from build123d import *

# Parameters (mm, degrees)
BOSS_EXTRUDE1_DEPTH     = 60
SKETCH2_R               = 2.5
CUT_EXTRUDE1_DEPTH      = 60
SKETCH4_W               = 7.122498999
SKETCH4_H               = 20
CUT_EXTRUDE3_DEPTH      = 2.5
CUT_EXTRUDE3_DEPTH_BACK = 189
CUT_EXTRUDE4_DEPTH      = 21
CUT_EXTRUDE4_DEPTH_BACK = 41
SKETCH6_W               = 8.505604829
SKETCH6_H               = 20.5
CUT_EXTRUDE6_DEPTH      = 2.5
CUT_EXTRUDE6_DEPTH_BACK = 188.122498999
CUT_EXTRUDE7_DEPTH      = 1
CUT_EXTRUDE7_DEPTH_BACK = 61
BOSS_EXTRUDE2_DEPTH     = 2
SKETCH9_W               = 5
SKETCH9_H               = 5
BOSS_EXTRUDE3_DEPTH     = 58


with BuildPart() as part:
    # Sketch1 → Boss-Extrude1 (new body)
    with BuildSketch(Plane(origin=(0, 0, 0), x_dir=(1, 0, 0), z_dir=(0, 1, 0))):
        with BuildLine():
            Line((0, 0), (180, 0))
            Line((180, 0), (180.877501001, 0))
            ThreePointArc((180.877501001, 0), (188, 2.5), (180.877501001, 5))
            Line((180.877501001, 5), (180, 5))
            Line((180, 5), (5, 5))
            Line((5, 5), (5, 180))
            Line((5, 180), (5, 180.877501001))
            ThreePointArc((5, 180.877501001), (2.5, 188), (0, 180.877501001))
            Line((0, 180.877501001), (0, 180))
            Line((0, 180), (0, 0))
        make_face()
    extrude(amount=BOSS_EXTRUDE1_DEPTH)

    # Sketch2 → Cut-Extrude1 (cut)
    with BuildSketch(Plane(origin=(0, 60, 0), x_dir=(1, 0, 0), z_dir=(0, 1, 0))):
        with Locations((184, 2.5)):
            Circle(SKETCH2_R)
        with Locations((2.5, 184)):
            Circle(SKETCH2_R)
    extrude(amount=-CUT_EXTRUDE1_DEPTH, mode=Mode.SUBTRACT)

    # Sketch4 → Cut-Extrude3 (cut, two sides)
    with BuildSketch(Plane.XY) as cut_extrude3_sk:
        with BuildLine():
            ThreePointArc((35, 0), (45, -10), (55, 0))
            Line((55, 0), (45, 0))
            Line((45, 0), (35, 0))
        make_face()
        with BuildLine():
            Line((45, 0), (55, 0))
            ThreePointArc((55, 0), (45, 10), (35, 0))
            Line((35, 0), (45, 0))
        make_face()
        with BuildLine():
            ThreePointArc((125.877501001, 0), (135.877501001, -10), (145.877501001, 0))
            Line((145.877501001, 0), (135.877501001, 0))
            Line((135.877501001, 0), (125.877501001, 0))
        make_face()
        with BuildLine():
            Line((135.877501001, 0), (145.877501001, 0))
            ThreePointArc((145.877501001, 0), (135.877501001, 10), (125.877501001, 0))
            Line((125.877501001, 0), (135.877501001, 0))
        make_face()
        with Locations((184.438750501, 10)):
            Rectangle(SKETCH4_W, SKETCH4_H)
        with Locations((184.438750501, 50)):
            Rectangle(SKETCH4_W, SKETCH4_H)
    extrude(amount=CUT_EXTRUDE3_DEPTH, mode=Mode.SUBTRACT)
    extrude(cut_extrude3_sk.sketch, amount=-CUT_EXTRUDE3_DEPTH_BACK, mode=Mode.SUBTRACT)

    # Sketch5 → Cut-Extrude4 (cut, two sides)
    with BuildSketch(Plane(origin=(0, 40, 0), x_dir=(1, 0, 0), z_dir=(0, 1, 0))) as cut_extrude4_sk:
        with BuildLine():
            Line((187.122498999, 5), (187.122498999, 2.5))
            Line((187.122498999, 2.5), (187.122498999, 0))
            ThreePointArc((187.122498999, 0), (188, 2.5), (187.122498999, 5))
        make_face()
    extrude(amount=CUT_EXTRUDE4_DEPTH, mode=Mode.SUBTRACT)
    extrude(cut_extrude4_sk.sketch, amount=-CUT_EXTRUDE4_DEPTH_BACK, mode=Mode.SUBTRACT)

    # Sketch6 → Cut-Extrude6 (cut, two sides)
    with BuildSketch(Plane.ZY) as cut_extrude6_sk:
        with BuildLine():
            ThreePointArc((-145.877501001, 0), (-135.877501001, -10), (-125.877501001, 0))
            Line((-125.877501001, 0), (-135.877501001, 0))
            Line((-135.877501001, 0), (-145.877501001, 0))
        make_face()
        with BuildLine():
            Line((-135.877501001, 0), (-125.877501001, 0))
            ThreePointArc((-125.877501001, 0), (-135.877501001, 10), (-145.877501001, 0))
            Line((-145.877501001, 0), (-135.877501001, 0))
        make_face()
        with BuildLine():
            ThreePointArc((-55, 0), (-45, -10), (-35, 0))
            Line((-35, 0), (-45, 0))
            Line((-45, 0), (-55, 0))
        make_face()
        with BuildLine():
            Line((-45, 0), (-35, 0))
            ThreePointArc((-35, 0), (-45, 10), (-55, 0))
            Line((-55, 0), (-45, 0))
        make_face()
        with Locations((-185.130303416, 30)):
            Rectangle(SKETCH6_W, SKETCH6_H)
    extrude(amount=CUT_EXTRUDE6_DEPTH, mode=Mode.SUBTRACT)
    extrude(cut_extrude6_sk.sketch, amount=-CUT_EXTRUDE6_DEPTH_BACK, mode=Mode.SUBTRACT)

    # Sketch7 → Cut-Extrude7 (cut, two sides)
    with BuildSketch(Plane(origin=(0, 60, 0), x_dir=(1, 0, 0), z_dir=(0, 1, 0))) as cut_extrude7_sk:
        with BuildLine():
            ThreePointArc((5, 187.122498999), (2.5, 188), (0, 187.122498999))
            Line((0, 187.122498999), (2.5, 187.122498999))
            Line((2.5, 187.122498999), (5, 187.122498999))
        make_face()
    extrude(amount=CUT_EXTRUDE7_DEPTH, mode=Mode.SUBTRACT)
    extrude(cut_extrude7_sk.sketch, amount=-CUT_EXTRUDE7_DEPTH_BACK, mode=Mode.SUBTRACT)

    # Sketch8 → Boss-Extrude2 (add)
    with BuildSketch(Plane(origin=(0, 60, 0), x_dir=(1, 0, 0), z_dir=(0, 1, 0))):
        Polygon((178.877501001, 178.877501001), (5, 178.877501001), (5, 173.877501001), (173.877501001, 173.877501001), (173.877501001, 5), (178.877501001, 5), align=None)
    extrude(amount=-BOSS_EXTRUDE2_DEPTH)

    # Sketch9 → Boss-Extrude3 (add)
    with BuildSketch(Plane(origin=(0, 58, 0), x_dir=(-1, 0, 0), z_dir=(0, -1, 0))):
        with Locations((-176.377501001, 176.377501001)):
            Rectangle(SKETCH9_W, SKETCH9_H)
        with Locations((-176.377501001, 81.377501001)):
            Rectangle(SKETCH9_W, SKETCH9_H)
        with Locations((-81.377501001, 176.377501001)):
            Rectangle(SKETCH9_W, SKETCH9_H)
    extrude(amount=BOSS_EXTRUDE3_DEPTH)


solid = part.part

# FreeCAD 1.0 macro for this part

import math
import FreeCAD as App
import Part
import Sketcher

V = App.Vector


def add_polygon(sketch, points):
    """Adds a closed chain of lines whose ends are joined by coincident constraints."""
    first, n = sketch.GeometryCount, len(points)
    for a, b in zip(points, points[1:] + points[:1]):
        sketch.addGeometry(Part.LineSegment(App.Vector(*a, 0), App.Vector(*b, 0)), False)
    for i in range(n):
        sketch.addConstraint(Sketcher.Constraint("Coincident", first + i, 2, first + (i + 1) % n, 1))

doc = App.newDocument("Part")
body = doc.addObject("PartDesign::Body", "Body")

# Sketch on XZ plane
sketch1 = doc.addObject("Sketcher::SketchObject", "Sketch")
body.addObject(sketch1)
sketch1.AttachmentSupport = (doc.XZ_Plane, [""])
sketch1.MapMode = "FlatFace"
sketch1.addGeometry([
    Part.LineSegment(V(0, 0, 0), V(180.9, 0, 0)),  # 0
    Part.ArcOfCircle(Part.Circle(V(184, -2.5, 0), V(0, 0, 1), 4), math.radians(-141), math.radians(141)),  # 1
    Part.LineSegment(V(180.9, -5, 0), V(5, -5, 0)),  # 2
    Part.LineSegment(V(5, -5, 0), V(5, -180.9, 0)),  # 3
    Part.ArcOfCircle(Part.Circle(V(2.5, -184, 0), V(0, 0, 1), 4), math.radians(129), math.radians(411)),  # 4
    Part.LineSegment(V(0, -180.9, 0), V(0, 0, 0)),  # 5
], False)
sketch1.addConstraint([
    Sketcher.Constraint("Coincident", 0, 2, 1, 2),
    Sketcher.Constraint("Coincident", 1, 1, 2, 1),
    Sketcher.Constraint("Coincident", 2, 2, 3, 1),
    Sketcher.Constraint("Coincident", 3, 2, 4, 2),
    Sketcher.Constraint("Coincident", 4, 1, 5, 1),
    Sketcher.Constraint("Coincident", 5, 2, 0, 1),
    Sketcher.Constraint("Horizontal", 0),
    Sketcher.Constraint("Horizontal", 2),
    Sketcher.Constraint("Vertical", 3),
    Sketcher.Constraint("Vertical", 5),
    Sketcher.Constraint("Coincident", 5, 2, -1, 1),
    Sketcher.Constraint("Equal", 1, 4),
    Sketcher.Constraint("Horizontal", 3, 2, 4, 1),
    Sketcher.Constraint("Vertical", 0, 2, 1, 1),
    Sketcher.Constraint("Equal", 2, 3),
    Sketcher.Constraint("Equal", 0, 5),
    Sketcher.Constraint("Radius", 1, 4.0),
    Sketcher.Constraint("DistanceX", -1, 1, 1, 3, 184.0),
    Sketcher.Constraint("DistanceY", 1, 1, -1, 1, 5.0),
])
pad1 = doc.addObject("PartDesign::Pad", "Pad")
body.addObject(pad1)
pad1.Profile = sketch1
pad1.Length = 60
pad1.Reversed = True

# Sketch on XZ plane
sketch2 = doc.addObject("Sketcher::SketchObject", "Sketch001")
body.addObject(sketch2)
sketch2.AttachmentSupport = (doc.XZ_Plane, [""])
sketch2.MapMode = "FlatFace"
sketch2.AttachmentOffset = App.Placement(V(0, 0, -60), App.Rotation())
sketch2.addGeometry([
    Part.Circle(V(184, -2.5, 0), V(0, 0, 1), 2.5),
    Part.Circle(V(2.5, -184, 0), V(0, 0, 1), 2.5),
], False)
sketch2.addConstraint([
    Sketcher.Constraint("Equal", 0, 1),
    Sketcher.Constraint("Diameter", 0, 5.0),
    Sketcher.Constraint("DistanceX", -1, 1, 0, 3, 184.0),
    Sketcher.Constraint("DistanceY", 1, 3, -1, 1, 184.0),
    Sketcher.Constraint("DistanceY", 0, 3, -1, 1, 2.5),
    Sketcher.Constraint("DistanceX", -1, 1, 1, 3, 2.5),
])
pocket1 = doc.addObject("PartDesign::Pocket", "Pocket")
body.addObject(pocket1)
pocket1.Profile = sketch2
pocket1.Length = 60
pocket1.Reversed = True

# Sketch on XY plane
sketch3 = doc.addObject("Sketcher::SketchObject", "Sketch002")
body.addObject(sketch3)
sketch3.AttachmentSupport = (doc.XY_Plane, [""])
sketch3.MapMode = "FlatFace"
sketch3.addGeometry(Part.Circle(V(45, 0, 0), V(0, 0, 1), 10), False)  # 0
sketch3.addGeometry(Part.Circle(V(136, 0, 0), V(0, 0, 1), 10), False)  # 1
add_polygon(sketch3, [(181, 20), (181, 0), (188, 0), (188, 20)])  # lines 2-5
add_polygon(sketch3, [(181, 60), (181, 40), (188, 40), (188, 60)])  # lines 6-9
sketch3.addConstraint([
    Sketcher.Constraint("Vertical", 2),
    Sketcher.Constraint("Horizontal", 3),
    Sketcher.Constraint("Vertical", 4),
    Sketcher.Constraint("Horizontal", 5),
    Sketcher.Constraint("Vertical", 6),
    Sketcher.Constraint("Horizontal", 7),
    Sketcher.Constraint("Vertical", 8),
    Sketcher.Constraint("Horizontal", 9),
    Sketcher.Constraint("Equal", 0, 1),
    Sketcher.Constraint("PointOnObject", 0, 3, -1),
    Sketcher.Constraint("PointOnObject", 1, 3, -1),
    Sketcher.Constraint("PointOnObject", 2, 2, -1),
    Sketcher.Constraint("Vertical", 5, 2, 6, 2),
    Sketcher.Constraint("Vertical", 4, 2, 7, 2),
    Sketcher.Constraint("Equal", 4, 6),
    Sketcher.Constraint("Diameter", 0, 20.0),
    Sketcher.Constraint("DistanceY", 2, 2, 2, 1, 20.0),
    Sketcher.Constraint("DistanceX", -1, 1, 0, 3, 45.0),
    Sketcher.Constraint("DistanceX", -1, 1, 3, 2, 188.0),
    Sketcher.Constraint("DistanceY", -1, 1, 6, 2, 40.0),
    Sketcher.Constraint("DistanceX", 1, 3, 2, 2, 45.0),
    Sketcher.Constraint("DistanceX", 3, 1, 3, 2, 7.122499),
])
pocket2 = doc.addObject("PartDesign::Pocket", "Pocket001")
body.addObject(pocket2)
pocket2.Profile = sketch3
pocket2.Type = "ThroughAll"
pocket2.Midplane = True

# Sketch on XZ plane
sketch4 = doc.addObject("Sketcher::SketchObject", "Sketch003")
body.addObject(sketch4)
sketch4.AttachmentSupport = (doc.XZ_Plane, [""])
sketch4.MapMode = "FlatFace"
sketch4.AttachmentOffset = App.Placement(V(0, 0, -40), App.Rotation())
sketch4.addGeometry([
    Part.LineSegment(V(187.1, -5, 0), V(187.1, 0, 0)),
    Part.ArcOfCircle(Part.Circle(V(184, -2.5, 0), V(0, 0, 1), 4), math.radians(-39), math.radians(39)),
], False)
sketch4.addConstraint([
    Sketcher.Constraint("Coincident", 0, 1, 1, 1),
    Sketcher.Constraint("Coincident", 1, 2, 0, 2),
    Sketcher.Constraint("Vertical", 0),
    Sketcher.Constraint("PointOnObject", 1, 2, -1),
    Sketcher.Constraint("Radius", 1, 4.0),
    Sketcher.Constraint("DistanceY", 0, 1, 0, 2, 5.0),
    Sketcher.Constraint("DistanceX", -1, 1, 1, 3, 184.0),
])
pocket3 = doc.addObject("PartDesign::Pocket", "Pocket002")
body.addObject(pocket3)
pocket3.Profile = sketch4
pocket3.Type = "ThroughAll"
pocket3.Midplane = True

# Sketch on YZ plane
sketch5 = doc.addObject("Sketcher::SketchObject", "Sketch004")
body.addObject(sketch5)
sketch5.AttachmentSupport = (doc.YZ_Plane, [""])
sketch5.MapMode = "FlatFace"
sketch5.addGeometry(Part.Circle(V(0, -136, 0), V(0, 0, 1), 10), False)  # 0
sketch5.addGeometry(Part.Circle(V(0, -45, 0), V(0, 0, 1), 10), False)  # 1
add_polygon(sketch5, [(40, -189), (20, -189), (20, -181), (40, -181)])  # lines 2-5
sketch5.addConstraint([
    Sketcher.Constraint("Horizontal", 2),
    Sketcher.Constraint("Vertical", 3),
    Sketcher.Constraint("Horizontal", 4),
    Sketcher.Constraint("Vertical", 5),
    Sketcher.Constraint("Equal", 0, 1),
    Sketcher.Constraint("PointOnObject", 0, 3, -2),
    Sketcher.Constraint("PointOnObject", 1, 3, -2),
    Sketcher.Constraint("Diameter", 0, 20.0),
    Sketcher.Constraint("DistanceX", 2, 2, 2, 1, 20.5),
    Sketcher.Constraint("DistanceY", 1, 3, -1, 1, 45.0),
    Sketcher.Constraint("DistanceY", 3, 2, 0, 3, 45.0),
    Sketcher.Constraint("DistanceX", -1, 1, 2, 2, 19.75),
    Sketcher.Constraint("DistanceY", 0, 3, -1, 1, 135.877501),
    Sketcher.Constraint("DistanceY", 3, 1, 3, 2, 8.505605),
])
pocket4 = doc.addObject("PartDesign::Pocket", "Pocket003")
body.addObject(pocket4)
pocket4.Profile = sketch5
pocket4.Type = "ThroughAll"
pocket4.Midplane = True

# Sketch on XZ plane
sketch6 = doc.addObject("Sketcher::SketchObject", "Sketch005")
body.addObject(sketch6)
sketch6.AttachmentSupport = (doc.XZ_Plane, [""])
sketch6.MapMode = "FlatFace"
sketch6.AttachmentOffset = App.Placement(V(0, 0, -60), App.Rotation())
sketch6.addGeometry([
    Part.ArcOfCircle(Part.Circle(V(2.5, -184, 0), V(0, 0, 1), 4), math.radians(-129), math.radians(-51)),
    Part.LineSegment(V(0, -187.1, 0), V(5, -187.1, 0)),
], False)
sketch6.addConstraint([
    Sketcher.Constraint("Coincident", 0, 1, 1, 1),
    Sketcher.Constraint("Coincident", 1, 2, 0, 2),
    Sketcher.Constraint("Horizontal", 1),
    Sketcher.Constraint("PointOnObject", 0, 1, -2),
    Sketcher.Constraint("Radius", 0, 4.0),
    Sketcher.Constraint("DistanceX", 1, 1, 1, 2, 5.0),
    Sketcher.Constraint("DistanceY", 0, 3, -1, 1, 184.0),
])
pocket5 = doc.addObject("PartDesign::Pocket", "Pocket004")
body.addObject(pocket5)
pocket5.Profile = sketch6
pocket5.Type = "ThroughAll"
pocket5.Midplane = True

# Sketch on XZ plane
sketch7 = doc.addObject("Sketcher::SketchObject", "Sketch006")
body.addObject(sketch7)
sketch7.AttachmentSupport = (doc.XZ_Plane, [""])
sketch7.MapMode = "FlatFace"
sketch7.AttachmentOffset = App.Placement(V(0, 0, -60), App.Rotation())
add_polygon(sketch7, [(179, -179), (5, -179), (5, -174), (174, -174), (174, -5), (179, -5)])  # lines 0-5
sketch7.addConstraint([
    Sketcher.Constraint("Horizontal", 0),
    Sketcher.Constraint("Vertical", 1),
    Sketcher.Constraint("Horizontal", 2),
    Sketcher.Constraint("Vertical", 3),
    Sketcher.Constraint("Horizontal", 4),
    Sketcher.Constraint("Vertical", 5),
    Sketcher.Constraint("Equal", 4, 1),
    Sketcher.Constraint("Equal", 2, 3),
    Sketcher.Constraint("DistanceX", 4, 1, 4, 2, 5.0),
    Sketcher.Constraint("DistanceX", -1, 1, 0, 2, 5.0),
    Sketcher.Constraint("DistanceY", 3, 2, -1, 1, 5.0),
    Sketcher.Constraint("DistanceX", 0, 2, 0, 1, 173.877501),
])
pad2 = doc.addObject("PartDesign::Pad", "Pad001")
body.addObject(pad2)
pad2.Profile = sketch7
pad2.Length = 2

# Sketch on XZ plane
sketch8 = doc.addObject("Sketcher::SketchObject", "Sketch007")
body.addObject(sketch8)
sketch8.AttachmentSupport = (doc.XZ_Plane, [""])
sketch8.MapMode = "FlatFace"
sketch8.AttachmentOffset = App.Placement(V(0, 0, -58), App.Rotation())
add_polygon(sketch8, [(179, -179), (179, -174), (174, -174), (174, -179)])  # lines 0-3
add_polygon(sketch8, [(179, -84), (179, -79), (174, -79), (174, -84)])  # lines 4-7
add_polygon(sketch8, [(84, -179), (84, -174), (79, -174), (79, -179)])  # lines 8-11
sketch8.addConstraint([
    Sketcher.Constraint("Vertical", 0),
    Sketcher.Constraint("Horizontal", 1),
    Sketcher.Constraint("Vertical", 2),
    Sketcher.Constraint("Horizontal", 3),
    Sketcher.Constraint("Vertical", 4),
    Sketcher.Constraint("Horizontal", 5),
    Sketcher.Constraint("Vertical", 6),
    Sketcher.Constraint("Horizontal", 7),
    Sketcher.Constraint("Vertical", 8),
    Sketcher.Constraint("Horizontal", 9),
    Sketcher.Constraint("Vertical", 10),
    Sketcher.Constraint("Horizontal", 11),
    Sketcher.Constraint("Horizontal", 1, 2, 8, 2),
    Sketcher.Constraint("Horizontal", 3, 2, 10, 2),
    Sketcher.Constraint("Vertical", 3, 2, 4, 2),
    Sketcher.Constraint("Vertical", 2, 2, 5, 2),
    Sketcher.Constraint("Equal", 7, 9),
    Sketcher.Constraint("Equal", 11, 0),
    Sketcher.Constraint("Equal", 2, 4),
    Sketcher.Constraint("DistanceX", 1, 2, 1, 1, 5.0),
    Sketcher.Constraint("DistanceY", 0, 2, 4, 2, 95.0),
    Sketcher.Constraint("DistanceX", 8, 2, 1, 2, 90.0),
    Sketcher.Constraint("DistanceX", -1, 1, 0, 2, 178.877501),
    Sketcher.Constraint("DistanceY", 0, 2, -1, 1, 173.877501),
])
pad3 = doc.addObject("PartDesign::Pad", "Pad002")
body.addObject(pad3)
pad3.Profile = sketch8
pad3.Length = 58

doc.recompute()
